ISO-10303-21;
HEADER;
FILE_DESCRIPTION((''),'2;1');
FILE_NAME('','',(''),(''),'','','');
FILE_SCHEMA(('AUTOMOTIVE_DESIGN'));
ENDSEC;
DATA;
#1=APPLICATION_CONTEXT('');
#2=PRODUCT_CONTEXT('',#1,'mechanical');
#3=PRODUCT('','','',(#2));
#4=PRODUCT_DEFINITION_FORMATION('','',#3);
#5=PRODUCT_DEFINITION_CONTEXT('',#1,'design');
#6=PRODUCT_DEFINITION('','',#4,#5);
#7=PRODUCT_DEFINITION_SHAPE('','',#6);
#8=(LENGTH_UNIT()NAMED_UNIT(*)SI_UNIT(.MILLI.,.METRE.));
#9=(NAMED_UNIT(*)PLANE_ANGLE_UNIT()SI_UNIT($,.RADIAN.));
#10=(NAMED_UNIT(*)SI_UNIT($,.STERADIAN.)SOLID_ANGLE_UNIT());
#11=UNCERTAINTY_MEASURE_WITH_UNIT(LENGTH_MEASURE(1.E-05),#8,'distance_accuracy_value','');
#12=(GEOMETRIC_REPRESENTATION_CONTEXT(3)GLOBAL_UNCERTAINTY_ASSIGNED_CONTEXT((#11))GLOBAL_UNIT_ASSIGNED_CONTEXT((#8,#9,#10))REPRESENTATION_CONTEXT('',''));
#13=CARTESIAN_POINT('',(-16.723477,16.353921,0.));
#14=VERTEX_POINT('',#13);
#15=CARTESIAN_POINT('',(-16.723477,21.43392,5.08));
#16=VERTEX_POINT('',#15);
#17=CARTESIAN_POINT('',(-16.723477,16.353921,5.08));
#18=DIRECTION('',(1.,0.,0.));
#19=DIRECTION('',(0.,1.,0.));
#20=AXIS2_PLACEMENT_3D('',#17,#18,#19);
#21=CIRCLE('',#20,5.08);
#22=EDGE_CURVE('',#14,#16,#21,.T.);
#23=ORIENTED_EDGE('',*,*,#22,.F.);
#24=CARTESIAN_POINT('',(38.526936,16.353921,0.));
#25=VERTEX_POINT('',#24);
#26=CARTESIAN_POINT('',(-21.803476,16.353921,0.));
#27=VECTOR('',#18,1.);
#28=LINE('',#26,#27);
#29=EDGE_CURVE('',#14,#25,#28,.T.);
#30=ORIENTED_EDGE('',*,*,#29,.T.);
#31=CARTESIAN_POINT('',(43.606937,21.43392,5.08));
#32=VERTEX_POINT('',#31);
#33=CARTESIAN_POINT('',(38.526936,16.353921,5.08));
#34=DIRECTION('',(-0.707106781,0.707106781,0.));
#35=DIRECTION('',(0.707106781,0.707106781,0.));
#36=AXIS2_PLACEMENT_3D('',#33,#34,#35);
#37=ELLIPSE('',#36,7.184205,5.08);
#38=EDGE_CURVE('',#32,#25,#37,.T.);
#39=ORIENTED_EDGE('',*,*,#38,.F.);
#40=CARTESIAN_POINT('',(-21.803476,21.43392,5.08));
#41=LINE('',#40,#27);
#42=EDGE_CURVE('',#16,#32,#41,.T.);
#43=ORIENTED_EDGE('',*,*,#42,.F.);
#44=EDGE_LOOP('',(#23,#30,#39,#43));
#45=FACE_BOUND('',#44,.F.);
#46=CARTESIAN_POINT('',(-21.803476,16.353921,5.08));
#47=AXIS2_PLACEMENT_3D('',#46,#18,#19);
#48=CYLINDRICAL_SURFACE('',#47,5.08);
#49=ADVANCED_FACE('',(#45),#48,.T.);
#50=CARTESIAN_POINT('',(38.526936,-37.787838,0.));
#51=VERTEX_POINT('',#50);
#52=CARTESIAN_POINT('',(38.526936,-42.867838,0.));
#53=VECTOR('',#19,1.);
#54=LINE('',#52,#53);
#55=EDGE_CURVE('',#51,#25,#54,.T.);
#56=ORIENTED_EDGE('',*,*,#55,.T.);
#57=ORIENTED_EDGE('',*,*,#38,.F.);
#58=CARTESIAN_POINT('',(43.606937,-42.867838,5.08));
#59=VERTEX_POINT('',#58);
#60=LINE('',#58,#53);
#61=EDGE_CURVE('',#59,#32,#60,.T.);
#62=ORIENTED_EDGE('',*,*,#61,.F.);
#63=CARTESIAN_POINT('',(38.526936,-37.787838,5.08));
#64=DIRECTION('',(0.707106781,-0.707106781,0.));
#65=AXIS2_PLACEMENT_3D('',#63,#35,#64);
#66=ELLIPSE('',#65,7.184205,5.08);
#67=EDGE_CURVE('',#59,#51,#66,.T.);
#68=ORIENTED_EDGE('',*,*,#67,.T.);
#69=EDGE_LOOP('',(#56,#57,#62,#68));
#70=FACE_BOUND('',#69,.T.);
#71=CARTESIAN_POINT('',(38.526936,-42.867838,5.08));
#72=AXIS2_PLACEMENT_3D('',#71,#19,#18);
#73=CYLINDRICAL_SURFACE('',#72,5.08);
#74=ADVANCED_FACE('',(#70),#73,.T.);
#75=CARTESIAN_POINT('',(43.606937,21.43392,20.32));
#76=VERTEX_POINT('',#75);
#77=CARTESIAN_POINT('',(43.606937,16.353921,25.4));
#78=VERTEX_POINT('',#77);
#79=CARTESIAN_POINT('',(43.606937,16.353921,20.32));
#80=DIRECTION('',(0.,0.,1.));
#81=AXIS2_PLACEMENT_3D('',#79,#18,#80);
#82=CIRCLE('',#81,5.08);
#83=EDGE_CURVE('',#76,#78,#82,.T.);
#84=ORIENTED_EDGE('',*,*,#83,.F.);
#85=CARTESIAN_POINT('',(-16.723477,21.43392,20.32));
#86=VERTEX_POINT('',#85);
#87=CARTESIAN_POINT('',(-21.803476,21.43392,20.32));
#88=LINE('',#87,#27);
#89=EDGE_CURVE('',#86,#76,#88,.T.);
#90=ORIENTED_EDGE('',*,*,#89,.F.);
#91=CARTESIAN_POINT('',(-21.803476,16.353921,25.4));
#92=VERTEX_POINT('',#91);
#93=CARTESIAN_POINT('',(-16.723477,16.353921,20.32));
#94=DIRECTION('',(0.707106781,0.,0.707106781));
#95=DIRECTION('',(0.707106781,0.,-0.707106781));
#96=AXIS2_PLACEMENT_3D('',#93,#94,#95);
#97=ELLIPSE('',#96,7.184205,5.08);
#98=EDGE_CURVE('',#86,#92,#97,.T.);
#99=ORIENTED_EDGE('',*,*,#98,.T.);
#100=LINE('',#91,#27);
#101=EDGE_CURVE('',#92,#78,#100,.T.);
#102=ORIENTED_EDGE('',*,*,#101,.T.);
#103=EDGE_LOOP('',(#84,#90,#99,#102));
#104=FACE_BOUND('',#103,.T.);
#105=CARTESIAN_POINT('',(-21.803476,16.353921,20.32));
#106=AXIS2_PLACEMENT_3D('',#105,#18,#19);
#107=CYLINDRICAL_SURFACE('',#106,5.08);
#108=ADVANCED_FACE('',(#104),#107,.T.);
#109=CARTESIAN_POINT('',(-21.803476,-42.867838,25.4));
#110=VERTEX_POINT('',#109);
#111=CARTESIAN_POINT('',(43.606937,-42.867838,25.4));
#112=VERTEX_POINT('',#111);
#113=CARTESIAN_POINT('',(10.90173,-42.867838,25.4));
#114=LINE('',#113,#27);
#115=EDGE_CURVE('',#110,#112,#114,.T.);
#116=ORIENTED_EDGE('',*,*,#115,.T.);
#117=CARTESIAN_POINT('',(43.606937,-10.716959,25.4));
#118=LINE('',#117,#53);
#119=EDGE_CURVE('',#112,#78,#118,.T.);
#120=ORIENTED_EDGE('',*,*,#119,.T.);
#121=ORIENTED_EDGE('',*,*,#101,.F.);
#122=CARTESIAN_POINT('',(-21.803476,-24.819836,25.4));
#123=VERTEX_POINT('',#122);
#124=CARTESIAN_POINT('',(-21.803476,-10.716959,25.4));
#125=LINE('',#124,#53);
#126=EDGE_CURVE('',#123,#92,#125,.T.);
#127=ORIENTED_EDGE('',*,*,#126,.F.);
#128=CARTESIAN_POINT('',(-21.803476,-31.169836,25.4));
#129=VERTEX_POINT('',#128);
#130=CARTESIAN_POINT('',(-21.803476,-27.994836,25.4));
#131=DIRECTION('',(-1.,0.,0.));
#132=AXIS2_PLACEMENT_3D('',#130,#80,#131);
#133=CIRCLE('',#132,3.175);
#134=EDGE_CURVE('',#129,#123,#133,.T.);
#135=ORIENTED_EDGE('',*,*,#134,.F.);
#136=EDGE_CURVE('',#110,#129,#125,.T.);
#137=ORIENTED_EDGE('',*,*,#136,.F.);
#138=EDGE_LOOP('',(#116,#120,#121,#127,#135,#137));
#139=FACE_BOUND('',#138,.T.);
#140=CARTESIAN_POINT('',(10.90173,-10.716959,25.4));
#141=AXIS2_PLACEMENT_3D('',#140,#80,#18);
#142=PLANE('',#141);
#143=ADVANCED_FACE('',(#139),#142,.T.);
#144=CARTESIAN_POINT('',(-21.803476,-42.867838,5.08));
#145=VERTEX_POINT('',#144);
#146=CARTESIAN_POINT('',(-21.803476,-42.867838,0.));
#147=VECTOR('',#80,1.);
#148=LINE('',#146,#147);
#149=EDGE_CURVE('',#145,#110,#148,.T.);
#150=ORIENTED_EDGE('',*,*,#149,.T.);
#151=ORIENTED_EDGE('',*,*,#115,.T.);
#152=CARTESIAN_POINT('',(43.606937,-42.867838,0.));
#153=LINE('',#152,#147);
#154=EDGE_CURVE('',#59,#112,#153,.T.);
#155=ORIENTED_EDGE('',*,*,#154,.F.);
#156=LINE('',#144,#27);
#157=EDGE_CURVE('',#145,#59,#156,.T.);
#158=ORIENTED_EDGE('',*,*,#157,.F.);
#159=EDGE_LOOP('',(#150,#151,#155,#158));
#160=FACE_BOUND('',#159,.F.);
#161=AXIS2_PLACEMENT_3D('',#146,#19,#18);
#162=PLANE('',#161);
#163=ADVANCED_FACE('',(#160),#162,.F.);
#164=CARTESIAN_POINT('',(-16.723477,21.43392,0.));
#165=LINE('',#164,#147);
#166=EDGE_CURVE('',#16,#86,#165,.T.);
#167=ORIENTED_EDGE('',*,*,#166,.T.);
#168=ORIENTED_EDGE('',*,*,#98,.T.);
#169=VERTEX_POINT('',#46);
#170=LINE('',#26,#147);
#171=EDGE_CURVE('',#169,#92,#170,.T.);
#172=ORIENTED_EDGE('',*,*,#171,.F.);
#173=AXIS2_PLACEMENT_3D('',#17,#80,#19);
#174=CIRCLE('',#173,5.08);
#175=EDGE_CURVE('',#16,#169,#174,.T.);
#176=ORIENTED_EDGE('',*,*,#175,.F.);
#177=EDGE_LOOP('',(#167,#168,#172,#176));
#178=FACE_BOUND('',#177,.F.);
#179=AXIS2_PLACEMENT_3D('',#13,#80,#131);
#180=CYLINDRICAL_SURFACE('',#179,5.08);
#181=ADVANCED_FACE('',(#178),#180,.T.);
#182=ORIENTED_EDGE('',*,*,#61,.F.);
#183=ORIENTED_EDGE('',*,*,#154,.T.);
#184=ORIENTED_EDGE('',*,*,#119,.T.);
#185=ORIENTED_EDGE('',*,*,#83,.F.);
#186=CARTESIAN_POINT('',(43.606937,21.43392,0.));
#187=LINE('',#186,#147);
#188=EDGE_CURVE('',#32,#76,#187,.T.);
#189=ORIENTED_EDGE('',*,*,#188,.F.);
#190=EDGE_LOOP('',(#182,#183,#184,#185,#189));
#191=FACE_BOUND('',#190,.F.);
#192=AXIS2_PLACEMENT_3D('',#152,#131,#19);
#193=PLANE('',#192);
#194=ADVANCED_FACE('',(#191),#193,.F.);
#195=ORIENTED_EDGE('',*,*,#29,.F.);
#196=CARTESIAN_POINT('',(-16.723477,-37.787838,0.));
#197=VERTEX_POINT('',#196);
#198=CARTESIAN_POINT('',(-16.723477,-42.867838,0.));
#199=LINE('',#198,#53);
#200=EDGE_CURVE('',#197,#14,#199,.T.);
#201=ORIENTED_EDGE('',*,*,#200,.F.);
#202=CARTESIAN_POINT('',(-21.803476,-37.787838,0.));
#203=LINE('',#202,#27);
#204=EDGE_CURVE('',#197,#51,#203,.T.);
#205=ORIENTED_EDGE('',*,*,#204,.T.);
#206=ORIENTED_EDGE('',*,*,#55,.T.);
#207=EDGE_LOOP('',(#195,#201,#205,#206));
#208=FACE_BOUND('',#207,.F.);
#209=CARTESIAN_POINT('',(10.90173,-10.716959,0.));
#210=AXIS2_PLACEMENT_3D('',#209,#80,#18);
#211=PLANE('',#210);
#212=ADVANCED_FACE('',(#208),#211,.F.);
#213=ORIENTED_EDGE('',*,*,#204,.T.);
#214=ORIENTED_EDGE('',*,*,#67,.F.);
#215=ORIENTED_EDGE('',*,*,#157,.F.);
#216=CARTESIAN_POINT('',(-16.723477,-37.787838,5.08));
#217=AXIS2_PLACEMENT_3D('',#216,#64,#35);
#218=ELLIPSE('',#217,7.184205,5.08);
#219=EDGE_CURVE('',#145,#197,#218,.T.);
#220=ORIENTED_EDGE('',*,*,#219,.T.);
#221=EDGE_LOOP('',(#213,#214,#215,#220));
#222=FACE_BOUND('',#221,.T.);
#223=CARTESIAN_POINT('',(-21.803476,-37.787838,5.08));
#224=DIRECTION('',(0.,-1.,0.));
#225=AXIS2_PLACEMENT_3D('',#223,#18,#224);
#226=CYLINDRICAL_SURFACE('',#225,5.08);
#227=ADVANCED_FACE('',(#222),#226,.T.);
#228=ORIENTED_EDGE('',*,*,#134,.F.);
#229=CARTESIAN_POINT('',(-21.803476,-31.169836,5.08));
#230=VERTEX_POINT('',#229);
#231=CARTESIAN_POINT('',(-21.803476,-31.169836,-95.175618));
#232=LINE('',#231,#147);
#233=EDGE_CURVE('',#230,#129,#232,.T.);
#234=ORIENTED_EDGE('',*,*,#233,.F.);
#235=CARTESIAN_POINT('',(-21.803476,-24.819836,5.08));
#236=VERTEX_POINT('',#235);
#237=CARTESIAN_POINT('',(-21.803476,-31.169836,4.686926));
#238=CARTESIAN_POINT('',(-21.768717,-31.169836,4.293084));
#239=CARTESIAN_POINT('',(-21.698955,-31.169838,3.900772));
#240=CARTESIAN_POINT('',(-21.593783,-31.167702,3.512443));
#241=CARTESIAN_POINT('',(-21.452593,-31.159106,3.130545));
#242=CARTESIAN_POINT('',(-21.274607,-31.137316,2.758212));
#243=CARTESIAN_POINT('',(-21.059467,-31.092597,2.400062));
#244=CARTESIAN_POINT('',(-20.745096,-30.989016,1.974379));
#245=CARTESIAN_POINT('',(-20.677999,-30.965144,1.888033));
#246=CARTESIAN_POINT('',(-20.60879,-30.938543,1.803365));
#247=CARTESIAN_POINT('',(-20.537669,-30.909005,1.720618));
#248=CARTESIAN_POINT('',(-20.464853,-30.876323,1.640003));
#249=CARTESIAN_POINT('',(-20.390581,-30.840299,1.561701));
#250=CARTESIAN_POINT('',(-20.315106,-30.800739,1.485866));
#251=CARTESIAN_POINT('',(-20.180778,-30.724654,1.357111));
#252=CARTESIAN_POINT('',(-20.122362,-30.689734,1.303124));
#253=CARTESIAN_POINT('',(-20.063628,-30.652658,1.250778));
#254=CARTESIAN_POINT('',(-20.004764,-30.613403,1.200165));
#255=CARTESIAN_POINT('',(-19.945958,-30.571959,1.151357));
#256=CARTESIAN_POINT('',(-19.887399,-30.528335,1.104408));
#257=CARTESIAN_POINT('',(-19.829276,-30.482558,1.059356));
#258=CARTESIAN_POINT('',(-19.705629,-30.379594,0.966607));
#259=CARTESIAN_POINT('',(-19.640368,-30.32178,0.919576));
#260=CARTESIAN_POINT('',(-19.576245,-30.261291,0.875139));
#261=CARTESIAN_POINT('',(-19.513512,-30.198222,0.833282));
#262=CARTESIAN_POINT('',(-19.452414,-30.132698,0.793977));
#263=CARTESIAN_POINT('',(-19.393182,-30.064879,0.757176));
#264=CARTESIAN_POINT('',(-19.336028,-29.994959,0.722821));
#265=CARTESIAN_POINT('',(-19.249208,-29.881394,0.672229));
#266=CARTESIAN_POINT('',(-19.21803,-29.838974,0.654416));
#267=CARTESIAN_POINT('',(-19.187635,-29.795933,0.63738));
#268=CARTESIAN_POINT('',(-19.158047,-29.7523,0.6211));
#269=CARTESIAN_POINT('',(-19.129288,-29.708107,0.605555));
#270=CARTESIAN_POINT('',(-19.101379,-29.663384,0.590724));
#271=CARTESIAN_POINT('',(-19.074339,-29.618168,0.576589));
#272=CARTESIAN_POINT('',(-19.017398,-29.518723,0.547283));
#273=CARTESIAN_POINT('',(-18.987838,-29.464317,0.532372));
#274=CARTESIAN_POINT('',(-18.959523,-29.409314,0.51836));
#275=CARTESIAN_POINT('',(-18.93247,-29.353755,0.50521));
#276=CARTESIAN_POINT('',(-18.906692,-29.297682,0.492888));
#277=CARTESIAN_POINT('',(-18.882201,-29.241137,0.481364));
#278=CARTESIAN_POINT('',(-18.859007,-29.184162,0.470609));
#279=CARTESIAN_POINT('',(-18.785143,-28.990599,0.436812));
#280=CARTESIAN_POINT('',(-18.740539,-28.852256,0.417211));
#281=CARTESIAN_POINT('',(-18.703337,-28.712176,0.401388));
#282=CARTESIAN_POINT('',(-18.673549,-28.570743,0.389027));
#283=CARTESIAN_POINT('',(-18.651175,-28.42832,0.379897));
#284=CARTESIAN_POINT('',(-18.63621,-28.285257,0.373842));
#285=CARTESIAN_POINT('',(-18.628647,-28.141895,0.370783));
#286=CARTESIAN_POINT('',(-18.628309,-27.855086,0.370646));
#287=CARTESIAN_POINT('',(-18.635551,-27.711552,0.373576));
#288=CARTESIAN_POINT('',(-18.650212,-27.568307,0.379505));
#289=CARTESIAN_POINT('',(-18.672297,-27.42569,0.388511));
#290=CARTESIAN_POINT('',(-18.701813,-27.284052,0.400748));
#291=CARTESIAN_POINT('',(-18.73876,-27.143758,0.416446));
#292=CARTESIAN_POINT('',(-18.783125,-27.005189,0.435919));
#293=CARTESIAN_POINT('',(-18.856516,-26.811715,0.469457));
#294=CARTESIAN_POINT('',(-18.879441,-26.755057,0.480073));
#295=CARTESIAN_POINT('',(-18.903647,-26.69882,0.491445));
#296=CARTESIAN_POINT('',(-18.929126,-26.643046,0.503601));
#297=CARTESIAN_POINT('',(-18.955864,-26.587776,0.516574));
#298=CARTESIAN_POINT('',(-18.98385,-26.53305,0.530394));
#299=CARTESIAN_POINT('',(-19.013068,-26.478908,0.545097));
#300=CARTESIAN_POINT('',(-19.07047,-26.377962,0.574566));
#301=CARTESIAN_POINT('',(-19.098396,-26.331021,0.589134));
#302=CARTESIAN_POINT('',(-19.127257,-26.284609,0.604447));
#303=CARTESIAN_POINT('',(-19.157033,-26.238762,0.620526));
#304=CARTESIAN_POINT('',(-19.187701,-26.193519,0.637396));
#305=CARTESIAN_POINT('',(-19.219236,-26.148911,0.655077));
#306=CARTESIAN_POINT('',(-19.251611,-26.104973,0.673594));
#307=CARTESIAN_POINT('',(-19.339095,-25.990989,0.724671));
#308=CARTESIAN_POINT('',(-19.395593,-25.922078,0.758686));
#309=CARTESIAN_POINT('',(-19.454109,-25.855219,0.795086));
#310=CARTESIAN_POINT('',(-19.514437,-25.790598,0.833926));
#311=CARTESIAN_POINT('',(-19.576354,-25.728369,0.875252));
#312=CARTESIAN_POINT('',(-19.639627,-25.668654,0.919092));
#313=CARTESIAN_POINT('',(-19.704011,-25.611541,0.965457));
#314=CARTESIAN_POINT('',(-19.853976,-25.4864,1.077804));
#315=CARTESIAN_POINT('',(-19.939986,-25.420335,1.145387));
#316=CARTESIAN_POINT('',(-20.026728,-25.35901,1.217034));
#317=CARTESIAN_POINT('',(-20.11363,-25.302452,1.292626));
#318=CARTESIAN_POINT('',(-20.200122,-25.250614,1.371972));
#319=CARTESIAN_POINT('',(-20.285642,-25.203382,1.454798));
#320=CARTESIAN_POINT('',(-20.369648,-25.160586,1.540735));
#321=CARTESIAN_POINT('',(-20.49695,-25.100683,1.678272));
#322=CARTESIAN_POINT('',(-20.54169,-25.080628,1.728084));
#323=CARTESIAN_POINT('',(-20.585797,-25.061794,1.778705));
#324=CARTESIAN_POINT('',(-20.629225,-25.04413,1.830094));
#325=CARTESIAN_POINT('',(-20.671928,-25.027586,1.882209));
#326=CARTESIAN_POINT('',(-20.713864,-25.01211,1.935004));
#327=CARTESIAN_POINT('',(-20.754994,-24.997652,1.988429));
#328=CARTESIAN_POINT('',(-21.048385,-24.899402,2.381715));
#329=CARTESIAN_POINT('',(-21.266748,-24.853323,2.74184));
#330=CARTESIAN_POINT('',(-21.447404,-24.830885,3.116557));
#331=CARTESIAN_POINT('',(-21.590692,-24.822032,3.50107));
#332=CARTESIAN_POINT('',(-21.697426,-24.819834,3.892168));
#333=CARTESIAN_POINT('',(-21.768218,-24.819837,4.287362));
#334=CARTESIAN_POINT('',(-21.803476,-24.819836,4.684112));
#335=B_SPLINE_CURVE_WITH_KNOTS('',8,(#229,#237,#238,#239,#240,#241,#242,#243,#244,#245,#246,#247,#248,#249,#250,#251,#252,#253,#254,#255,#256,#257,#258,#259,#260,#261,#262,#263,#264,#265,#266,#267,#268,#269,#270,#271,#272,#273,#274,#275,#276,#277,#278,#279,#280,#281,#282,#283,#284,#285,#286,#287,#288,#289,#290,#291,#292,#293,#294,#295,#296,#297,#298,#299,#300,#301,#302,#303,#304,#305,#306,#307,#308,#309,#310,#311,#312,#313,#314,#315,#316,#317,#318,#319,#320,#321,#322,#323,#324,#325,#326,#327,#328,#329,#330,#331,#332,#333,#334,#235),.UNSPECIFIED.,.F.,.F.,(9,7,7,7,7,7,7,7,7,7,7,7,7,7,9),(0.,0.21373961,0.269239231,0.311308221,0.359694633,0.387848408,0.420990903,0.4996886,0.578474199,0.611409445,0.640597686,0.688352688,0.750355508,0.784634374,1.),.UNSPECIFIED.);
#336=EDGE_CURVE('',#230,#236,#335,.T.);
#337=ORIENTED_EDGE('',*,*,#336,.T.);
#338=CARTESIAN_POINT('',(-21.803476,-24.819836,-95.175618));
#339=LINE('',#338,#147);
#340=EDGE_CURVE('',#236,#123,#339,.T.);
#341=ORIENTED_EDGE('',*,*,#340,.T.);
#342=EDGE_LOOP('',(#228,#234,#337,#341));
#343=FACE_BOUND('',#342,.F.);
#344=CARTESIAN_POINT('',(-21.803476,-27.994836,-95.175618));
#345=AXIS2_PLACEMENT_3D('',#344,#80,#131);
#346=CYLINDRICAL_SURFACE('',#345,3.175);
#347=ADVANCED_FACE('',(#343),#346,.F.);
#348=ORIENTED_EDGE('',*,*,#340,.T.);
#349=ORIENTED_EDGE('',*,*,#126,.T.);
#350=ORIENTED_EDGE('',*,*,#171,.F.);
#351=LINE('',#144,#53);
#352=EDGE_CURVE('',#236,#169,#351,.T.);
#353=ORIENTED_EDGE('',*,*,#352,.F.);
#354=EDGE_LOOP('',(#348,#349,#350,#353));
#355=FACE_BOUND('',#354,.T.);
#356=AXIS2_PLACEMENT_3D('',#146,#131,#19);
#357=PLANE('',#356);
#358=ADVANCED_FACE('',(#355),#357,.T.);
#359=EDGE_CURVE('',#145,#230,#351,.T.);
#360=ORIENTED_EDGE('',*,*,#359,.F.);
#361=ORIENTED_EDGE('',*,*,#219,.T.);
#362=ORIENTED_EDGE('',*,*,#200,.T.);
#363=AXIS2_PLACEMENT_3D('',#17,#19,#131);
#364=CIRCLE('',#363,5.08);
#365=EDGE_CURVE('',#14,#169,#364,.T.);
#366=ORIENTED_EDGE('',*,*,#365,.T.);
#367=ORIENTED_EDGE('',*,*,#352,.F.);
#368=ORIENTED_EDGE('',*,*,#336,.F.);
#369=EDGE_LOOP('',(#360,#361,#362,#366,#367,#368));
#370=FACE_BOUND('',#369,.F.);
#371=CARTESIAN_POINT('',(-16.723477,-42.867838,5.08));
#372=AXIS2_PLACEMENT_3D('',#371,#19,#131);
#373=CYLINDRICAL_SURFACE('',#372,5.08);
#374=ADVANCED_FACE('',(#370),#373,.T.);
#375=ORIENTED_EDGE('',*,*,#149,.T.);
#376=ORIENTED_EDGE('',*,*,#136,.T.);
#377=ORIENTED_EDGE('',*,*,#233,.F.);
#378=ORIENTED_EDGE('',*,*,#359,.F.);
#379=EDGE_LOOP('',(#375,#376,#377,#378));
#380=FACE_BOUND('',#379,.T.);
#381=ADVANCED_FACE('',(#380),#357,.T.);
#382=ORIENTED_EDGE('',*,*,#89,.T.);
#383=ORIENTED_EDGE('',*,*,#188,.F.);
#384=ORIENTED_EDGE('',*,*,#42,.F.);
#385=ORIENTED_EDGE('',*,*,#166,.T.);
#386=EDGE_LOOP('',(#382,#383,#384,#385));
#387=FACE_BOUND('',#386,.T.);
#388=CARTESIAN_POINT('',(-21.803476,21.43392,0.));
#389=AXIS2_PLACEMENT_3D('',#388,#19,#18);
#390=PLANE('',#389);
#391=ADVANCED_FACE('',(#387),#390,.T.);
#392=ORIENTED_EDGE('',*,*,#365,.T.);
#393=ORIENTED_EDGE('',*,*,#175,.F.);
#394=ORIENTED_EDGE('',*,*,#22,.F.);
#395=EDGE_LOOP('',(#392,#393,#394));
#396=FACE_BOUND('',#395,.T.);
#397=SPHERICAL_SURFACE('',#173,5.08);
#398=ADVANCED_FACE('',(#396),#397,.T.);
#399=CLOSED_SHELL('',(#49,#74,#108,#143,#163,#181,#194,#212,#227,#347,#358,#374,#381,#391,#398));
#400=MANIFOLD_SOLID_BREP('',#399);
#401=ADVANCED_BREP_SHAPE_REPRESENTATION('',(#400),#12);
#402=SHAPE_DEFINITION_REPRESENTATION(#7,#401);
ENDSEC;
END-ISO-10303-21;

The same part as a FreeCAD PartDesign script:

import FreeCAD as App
import Part
import Sketcher
Q = App.Units.Quantity


def edges_at(feature, points):
    """Names of the edges that pass closest to the given points."""
    edges = feature.Shape.Edges
    near = lambda p: min(range(len(edges)), key=lambda i: edges[i].distToShape(Part.Vertex(*p))[0])
    return sorted({f"Edge{near(p) + 1}" for p in points})

doc = App.newDocument("Part")
body = doc.addObject("PartDesign::Body", "Body")

sketch1 = body.newObject("Sketcher::SketchObject", "Sketch")
sketch1.AttachmentSupport = (doc.getObject("XY_Plane"), [""])
sketch1.MapMode = "FlatFace"
sketch1.addGeometry([
    Part.LineSegment(App.Vector(-21.803476, 21.43392, 0), App.Vector(-21.803476, -42.867838, 0)),
    Part.LineSegment(App.Vector(-21.803476, -42.867838, 0), App.Vector(43.606937, -42.867838, 0)),
    Part.LineSegment(App.Vector(43.606937, -42.867838, 0), App.Vector(43.606937, 21.43392, 0)),
    Part.LineSegment(App.Vector(43.606937, 21.43392, 0), App.Vector(-21.803476, 21.43392, 0)),
], False)
sketch1.addConstraint([
    Sketcher.Constraint("Coincident", 0, 2, 1, 1),
    Sketcher.Constraint("Coincident", 1, 2, 2, 1),
    Sketcher.Constraint("Coincident", 2, 2, 3, 1),
    Sketcher.Constraint("Coincident", 3, 2, 0, 1),
    Sketcher.Constraint("Vertical", 0),
    Sketcher.Constraint("Horizontal", 1),
    Sketcher.Constraint("Vertical", 2),
    Sketcher.Constraint("Horizontal", 3),
    Sketcher.Constraint("DistanceY", 0, 2, 0, 1, Q("64.301759 mm")),
    Sketcher.Constraint("DistanceX", 1, 1, 1, 2, Q("65.410413 mm")),
    Sketcher.Constraint("DistanceY", 0, 2, -1, 1, Q("42.867838 mm")),
    Sketcher.Constraint("DistanceX", 0, 2, -1, 1, Q("21.803476 mm")),
])
pad1 = body.newObject("PartDesign::Pad", "Pad")
pad1.Profile = sketch1
pad1.Length = Q("1 in")
doc.recompute()

fillet = body.newObject("PartDesign::Fillet", "Fillet")
fillet.Base = (pad1, edges_at(pad1, [
    (10.902, 21.434, 25.4),
    (-21.803, 21.434, 12.7),
    (10.902, 21.434, 0),
    (-21.803, -10.717, 0),
    (10.902, -42.868, 0),
    (43.607, -10.717, 0),
]))
fillet.Radius = Q("0.2 in")

sketch2 = body.newObject("Sketcher::SketchObject", "Sketch001")
sketch2.AttachmentSupport = (doc.getObject("XY_Plane"), [""])
sketch2.MapMode = "FlatFace"
sketch2.addGeometry(Part.Circle(App.Vector(-21.803476, -27.994836, 0), App.Vector(0, 0, 1), 3.175), False)
sketch2.addConstraint([
    Sketcher.Constraint("Diameter", 0, Q("0.25 in")),
    Sketcher.Constraint("DistanceX", 0, 3, -1, 1, Q("21.803476 mm")),
    Sketcher.Constraint("DistanceY", 0, 3, -1, 1, Q("27.994836 mm")),
])
doc.recompute()
hole = body.newObject("PartDesign::Hole", "Hole")
hole.Profile = sketch2
hole.ThreadType = "None"
hole.Diameter = Q("0.25 in")
hole.DepthType = "ThroughAll"
hole.Reversed = True

doc.recompute()
